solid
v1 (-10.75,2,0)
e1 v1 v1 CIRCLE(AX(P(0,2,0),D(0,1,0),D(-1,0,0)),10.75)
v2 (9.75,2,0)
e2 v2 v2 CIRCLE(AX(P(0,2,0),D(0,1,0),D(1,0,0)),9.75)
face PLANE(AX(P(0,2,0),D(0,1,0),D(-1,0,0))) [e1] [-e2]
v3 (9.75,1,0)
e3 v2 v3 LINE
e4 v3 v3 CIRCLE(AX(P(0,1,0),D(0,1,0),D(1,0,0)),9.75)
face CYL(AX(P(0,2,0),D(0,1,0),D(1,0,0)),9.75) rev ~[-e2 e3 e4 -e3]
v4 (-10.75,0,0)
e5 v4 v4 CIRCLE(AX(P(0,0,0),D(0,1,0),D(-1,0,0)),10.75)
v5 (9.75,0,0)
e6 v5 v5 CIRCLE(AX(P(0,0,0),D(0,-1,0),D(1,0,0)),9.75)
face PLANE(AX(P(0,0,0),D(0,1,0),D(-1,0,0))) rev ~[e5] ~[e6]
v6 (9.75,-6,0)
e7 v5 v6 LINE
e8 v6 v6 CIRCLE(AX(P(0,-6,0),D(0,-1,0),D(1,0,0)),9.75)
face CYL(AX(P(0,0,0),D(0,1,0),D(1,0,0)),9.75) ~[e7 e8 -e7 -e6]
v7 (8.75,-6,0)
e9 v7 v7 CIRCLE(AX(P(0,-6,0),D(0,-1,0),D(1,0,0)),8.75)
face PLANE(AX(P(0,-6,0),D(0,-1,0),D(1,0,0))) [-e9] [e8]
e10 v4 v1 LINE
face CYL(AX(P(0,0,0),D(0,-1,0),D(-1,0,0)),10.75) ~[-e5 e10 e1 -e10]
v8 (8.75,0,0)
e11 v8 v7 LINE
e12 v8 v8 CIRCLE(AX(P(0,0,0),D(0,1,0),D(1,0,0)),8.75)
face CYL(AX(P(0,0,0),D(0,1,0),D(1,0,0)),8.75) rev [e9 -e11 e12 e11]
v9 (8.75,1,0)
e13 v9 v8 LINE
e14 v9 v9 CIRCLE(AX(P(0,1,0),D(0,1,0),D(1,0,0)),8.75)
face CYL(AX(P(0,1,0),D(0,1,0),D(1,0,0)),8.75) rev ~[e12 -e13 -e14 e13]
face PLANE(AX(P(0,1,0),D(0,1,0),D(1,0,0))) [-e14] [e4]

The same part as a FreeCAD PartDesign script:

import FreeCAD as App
import Part
import Sketcher
from FreeCAD import Vector

doc = App.newDocument("Part")
params = doc.addObject("Spreadsheet::Sheet", "Params")
for row, (alias, value) in enumerate([
    ("sketch1_diameter", "21.5 mm"),
    ("pad1_length", "2 mm"),
    ("sketch2_diameter", "19.5 mm"),
    ("pocket1_length", "1 mm"),
    ("sketch3_diameter", "17.5 mm"),
    ("pocket2_length", "1 mm"),
    ("sketch4_diameter", "19.5 mm"),
    ("sketch4_diameter2", "17.5 mm"),
    ("pad2_length", "6 mm"),
], start=1):
    params.set(f"A{row}", alias)
    params.set(f"B{row}", "=" + value)
    params.setAlias(f"B{row}", alias)

body = doc.addObject("PartDesign::Body", "Body")

sketch1 = body.newObject("Sketcher::SketchObject", "Sketch")
sketch1.AttachmentSupport = (doc.getObject("XZ_Plane"), [""])
sketch1.MapMode = "FlatFace"
sketch1.addGeometry(Part.Circle(Vector(0, 0, 0), Vector(0, 0, 1), 10.75), False)
sketch1.addConstraint(Sketcher.Constraint("Coincident", 0, 3, -1, 1))
sketch1.addConstraint(Sketcher.Constraint("Diameter", 0, 21.5))
sketch1.setExpression("Constraints[1]", "Params.sketch1_diameter")
pad1 = body.newObject("PartDesign::Pad", "Pad")
pad1.Profile = sketch1
pad1.setExpression("Length", "Params.pad1_length")
pad1.Reversed = True

sketch2 = body.newObject("Sketcher::SketchObject", "Sketch001")
sketch2.AttachmentSupport = (doc.getObject("XZ_Plane"), [""])
sketch2.MapMode = "FlatFace"
sketch2.AttachmentOffset = App.Placement(Vector(0, 0, -2), App.Rotation())
sketch2.addGeometry(Part.Circle(Vector(0, 0, 0), Vector(0, 0, 1), 9.75), False)
sketch2.addConstraint(Sketcher.Constraint("Coincident", 0, 3, -1, 1))
sketch2.addConstraint(Sketcher.Constraint("Diameter", 0, 19.5))
sketch2.setExpression("Constraints[1]", "Params.sketch2_diameter")
pocket1 = body.newObject("PartDesign::Pocket", "Pocket")
pocket1.Profile = sketch2
pocket1.setExpression("Length", "Params.pocket1_length")
pocket1.Reversed = True

sketch3 = body.newObject("Sketcher::SketchObject", "Sketch002")
sketch3.AttachmentSupport = (doc.getObject("XZ_Plane"), [""])
sketch3.MapMode = "FlatFace"
sketch3.AttachmentOffset = App.Placement(Vector(0, 0, -1), App.Rotation())
sketch3.addGeometry(Part.Circle(Vector(0, 0, 0), Vector(0, 0, 1), 8.75), False)
sketch3.addConstraint(Sketcher.Constraint("Coincident", 0, 3, -1, 1))
sketch3.addConstraint(Sketcher.Constraint("Diameter", 0, 17.5))
sketch3.setExpression("Constraints[1]", "Params.sketch3_diameter")
pocket2 = body.newObject("PartDesign::Pocket", "Pocket001")
pocket2.Profile = sketch3
pocket2.setExpression("Length", "Params.pocket2_length")
pocket2.Reversed = True

sketch4 = body.newObject("Sketcher::SketchObject", "Sketch003")
sketch4.AttachmentSupport = (doc.getObject("XZ_Plane"), [""])
sketch4.MapMode = "FlatFace"
sketch4.addGeometry(Part.Circle(Vector(0, 0, 0), Vector(0, 0, 1), 9.75), False)
sketch4.addGeometry(Part.Circle(Vector(0, 0, 0), Vector(0, 0, 1), 8.75), False)
sketch4.addConstraint(Sketcher.Constraint("Coincident", 0, 3, -1, 1))
sketch4.addConstraint(Sketcher.Constraint("Coincident", 1, 3, -1, 1))
sketch4.addConstraint(Sketcher.Constraint("Diameter", 0, 19.5))
sketch4.addConstraint(Sketcher.Constraint("Diameter", 1, 17.5))
sketch4.setExpression("Constraints[2]", "Params.sketch4_diameter")
sketch4.setExpression("Constraints[3]", "Params.sketch4_diameter2")
pad2 = body.newObject("PartDesign::Pad", "Pad001")
pad2.Profile = sketch4
pad2.setExpression("Length", "Params.pad2_length")

doc.recompute()
